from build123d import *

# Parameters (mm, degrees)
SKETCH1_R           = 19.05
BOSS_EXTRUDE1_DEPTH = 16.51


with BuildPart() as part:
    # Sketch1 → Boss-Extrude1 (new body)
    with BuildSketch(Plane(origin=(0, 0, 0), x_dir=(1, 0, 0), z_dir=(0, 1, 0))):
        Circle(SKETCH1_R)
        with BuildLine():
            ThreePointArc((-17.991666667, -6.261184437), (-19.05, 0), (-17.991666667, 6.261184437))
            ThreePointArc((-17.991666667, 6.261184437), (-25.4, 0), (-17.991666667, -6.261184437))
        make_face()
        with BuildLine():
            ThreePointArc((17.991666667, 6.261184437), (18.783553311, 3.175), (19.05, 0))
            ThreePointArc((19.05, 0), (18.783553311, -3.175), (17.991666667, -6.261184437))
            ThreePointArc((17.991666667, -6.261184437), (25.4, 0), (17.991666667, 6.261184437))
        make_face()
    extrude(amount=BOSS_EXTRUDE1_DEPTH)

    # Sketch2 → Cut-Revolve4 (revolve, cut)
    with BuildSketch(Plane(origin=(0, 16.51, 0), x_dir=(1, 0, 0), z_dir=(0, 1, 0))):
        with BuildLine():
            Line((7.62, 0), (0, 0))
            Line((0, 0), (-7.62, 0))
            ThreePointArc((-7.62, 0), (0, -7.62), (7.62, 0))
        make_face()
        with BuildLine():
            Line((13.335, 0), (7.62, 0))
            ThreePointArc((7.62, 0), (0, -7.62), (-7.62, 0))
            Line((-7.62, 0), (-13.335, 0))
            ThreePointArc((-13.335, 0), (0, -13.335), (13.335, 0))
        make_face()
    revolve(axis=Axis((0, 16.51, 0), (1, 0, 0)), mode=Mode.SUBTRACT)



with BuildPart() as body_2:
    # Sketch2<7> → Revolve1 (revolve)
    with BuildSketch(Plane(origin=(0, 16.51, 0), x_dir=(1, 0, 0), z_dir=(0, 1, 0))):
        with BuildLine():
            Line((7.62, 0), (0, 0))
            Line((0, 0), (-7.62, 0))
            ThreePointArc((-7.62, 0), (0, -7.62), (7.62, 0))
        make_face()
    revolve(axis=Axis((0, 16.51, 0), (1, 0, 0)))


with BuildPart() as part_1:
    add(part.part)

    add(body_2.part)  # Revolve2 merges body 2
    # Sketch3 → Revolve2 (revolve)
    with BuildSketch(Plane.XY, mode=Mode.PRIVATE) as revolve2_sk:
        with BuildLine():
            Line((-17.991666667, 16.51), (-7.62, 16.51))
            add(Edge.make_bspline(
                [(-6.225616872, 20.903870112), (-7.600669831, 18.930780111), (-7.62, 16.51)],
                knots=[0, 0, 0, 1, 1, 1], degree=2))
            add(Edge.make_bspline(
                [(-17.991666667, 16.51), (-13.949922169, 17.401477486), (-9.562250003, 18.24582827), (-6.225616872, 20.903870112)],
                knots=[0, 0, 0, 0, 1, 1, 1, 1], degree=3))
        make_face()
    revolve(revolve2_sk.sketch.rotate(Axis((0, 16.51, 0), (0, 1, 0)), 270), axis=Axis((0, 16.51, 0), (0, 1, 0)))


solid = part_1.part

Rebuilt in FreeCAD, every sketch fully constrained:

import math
import FreeCAD as App
import Part
import Sketcher
from FreeCAD import Vector
Q = App.Units.Quantity

doc = App.newDocument("Part")
body = doc.addObject("PartDesign::Body", "Body")

# Sketch on XZ plane
sketch1 = body.newObject("Sketcher::SketchObject", "Sketch")
sketch1.AttachmentSupport = (doc.getObject("XZ_Plane"), [""])
sketch1.MapMode = "FlatFace"
sketch1.addGeometry([
    Part.ArcOfCircle(Part.Circle(Vector(-19, 0, 0), Vector(0, 0, 1), 6), math.radians(80), math.radians(280)),
    Part.ArcOfCircle(Part.Circle(Vector(0, 0, 0), Vector(0, 0, 1), 19), math.radians(19), math.radians(161)),
    Part.ArcOfCircle(Part.Circle(Vector(19, 0, 0), Vector(0, 0, 1), 6), math.radians(-100), math.radians(100)),
    Part.ArcOfCircle(Part.Circle(Vector(0, 0, 0), Vector(0, 0, 1), 19), math.radians(-161), math.radians(-19)),
], False)
sketch1.addConstraint([
    Sketcher.Constraint("Coincident", 0, 1, 1, 2),
    Sketcher.Constraint("Coincident", 1, 1, 2, 2),
    Sketcher.Constraint("Coincident", 2, 1, 3, 2),
    Sketcher.Constraint("Coincident", 3, 1, 0, 2),
    Sketcher.Constraint("Coincident", 1, 3, -1, 1),
    Sketcher.Constraint("Coincident", 3, 3, -1, 1),
    Sketcher.Constraint("Equal", 0, 2),
    Sketcher.Constraint("Equal", 1, 3),
    Sketcher.Constraint("Symmetric", 0, 3, 2, 3, -1, 1),
    Sketcher.Constraint("PointOnObject", 0, 3, -1),
    Sketcher.Constraint("Radius", 0, Q("0.25 in")),
    Sketcher.Constraint("Radius", 1, Q("0.75 in")),
    Sketcher.Constraint("DistanceX", 0, 3, 2, 3, Q("1.5 in")),
])
pad1 = body.newObject("PartDesign::Pad", "Pad")
pad1.Profile = sketch1
pad1.Length = Q("0.65 in")
pad1.Reversed = True

# Sketch on XZ plane
sketch2 = body.newObject("Sketcher::SketchObject", "Sketch001")
sketch2.AttachmentSupport = (doc.getObject("XZ_Plane"), [""])
sketch2.MapMode = "FlatFace"
sketch2.AttachmentOffset = App.Placement(Vector(0, 0, -0.65 * 25.4), App.Rotation())
sketch2.addGeometry([
    Part.ArcOfCircle(Part.Circle(Vector(0, 0, 0), Vector(0, 0, 1), 13), math.radians(0), math.radians(180)),
    Part.LineSegment(Vector(13, 0, 0), Vector(-13, 0, 0)),
], False)
sketch2.addConstraint([
    Sketcher.Constraint("Coincident", 0, 1, 1, 1),
    Sketcher.Constraint("Coincident", 1, 2, 0, 2),
    Sketcher.Constraint("Horizontal", 1),
    Sketcher.Constraint("Coincident", 0, 3, -1, 1),
    Sketcher.Constraint("PointOnObject", 0, 1, -1),
    Sketcher.Constraint("Radius", 0, Q("0.525 in")),
])
groove = body.newObject("PartDesign::Groove", "Groove")
groove.Profile = sketch2
groove.ReferenceAxis = (sketch2, ["H_Axis"])
groove.Angle = 360
body2 = doc.addObject("PartDesign::Body", "Body001")

# Sketch on XZ plane
sketch3 = body2.newObject("Sketcher::SketchObject", "Sketch002")
sketch3.AttachmentSupport = (doc.getObject("XZ_Plane001"), [""])
sketch3.MapMode = "FlatFace"
sketch3.AttachmentOffset = App.Placement(Vector(0, 0, -0.65 * 25.4), App.Rotation())
sketch3.addGeometry([
    Part.LineSegment(Vector(8, 0, 0), Vector(-8, 0, 0)),
    Part.ArcOfCircle(Part.Circle(Vector(0, 0, 0), Vector(0, 0, 1), 8), math.radians(0), math.radians(180)),
], False)
sketch3.addConstraint([
    Sketcher.Constraint("Coincident", 0, 1, 1, 1),
    Sketcher.Constraint("Coincident", 1, 2, 0, 2),
    Sketcher.Constraint("Horizontal", 0),
    Sketcher.Constraint("Coincident", 1, 3, -1, 1),
    Sketcher.Constraint("PointOnObject", 0, 1, -1),
    Sketcher.Constraint("Radius", 1, Q("0.3 in")),
])
revolution = body2.newObject("PartDesign::Revolution", "Revolution")
revolution.Profile = sketch3
revolution.ReferenceAxis = (sketch3, ["H_Axis"])
revolution.Angle = 360
body.AllowCompound = True
doc.recompute()

boolean = body.newObject("PartDesign::Boolean", "Boolean")
boolean.Type = "Fuse"
boolean.addObjects([body2])

# Sketch on XY plane
sketch4 = body.newObject("Sketcher::SketchObject", "Sketch003")
sketch4.AttachmentSupport = (doc.getObject("XY_Plane"), [""])
sketch4.MapMode = "FlatFace"
sketch4.addGeometry([
    Part.LineSegment(Vector(-17.991667, 16.51, 0), Vector(-7.62, 16.51, 0)),
    Part.BSplineCurve([Vector(-6.225617, 20.90387, 0), Vector(-7.60067, 18.93078, 0), Vector(-7.62, 16.51, 0)], [3, 3], [0, 1], False, 2, [1, 1, 1], False),
    Part.BSplineCurve([Vector(-17.991667, 16.51, 0), Vector(-13.949922, 17.401477, 0), Vector(-9.56225, 18.245828, 0), Vector(-6.225617, 20.90387, 0)], [4, 4], [0, 1], False, 3, [1, 1, 1, 1], False),
], False)
sketch4.addConstraint([
    Sketcher.Constraint("Block", 1),
    Sketcher.Constraint("Block", 2),
    Sketcher.Constraint("Coincident", 0, 2, 1, 2),
    Sketcher.Constraint("Coincident", 2, 1, 0, 1),
])
revolution2 = body.newObject("PartDesign::Revolution", "Revolution001")
revolution2.Profile = sketch4
revolution2.ReferenceAxis = (sketch4, ["V_Axis"])
revolution2.Angle = 360

doc.recompute()
